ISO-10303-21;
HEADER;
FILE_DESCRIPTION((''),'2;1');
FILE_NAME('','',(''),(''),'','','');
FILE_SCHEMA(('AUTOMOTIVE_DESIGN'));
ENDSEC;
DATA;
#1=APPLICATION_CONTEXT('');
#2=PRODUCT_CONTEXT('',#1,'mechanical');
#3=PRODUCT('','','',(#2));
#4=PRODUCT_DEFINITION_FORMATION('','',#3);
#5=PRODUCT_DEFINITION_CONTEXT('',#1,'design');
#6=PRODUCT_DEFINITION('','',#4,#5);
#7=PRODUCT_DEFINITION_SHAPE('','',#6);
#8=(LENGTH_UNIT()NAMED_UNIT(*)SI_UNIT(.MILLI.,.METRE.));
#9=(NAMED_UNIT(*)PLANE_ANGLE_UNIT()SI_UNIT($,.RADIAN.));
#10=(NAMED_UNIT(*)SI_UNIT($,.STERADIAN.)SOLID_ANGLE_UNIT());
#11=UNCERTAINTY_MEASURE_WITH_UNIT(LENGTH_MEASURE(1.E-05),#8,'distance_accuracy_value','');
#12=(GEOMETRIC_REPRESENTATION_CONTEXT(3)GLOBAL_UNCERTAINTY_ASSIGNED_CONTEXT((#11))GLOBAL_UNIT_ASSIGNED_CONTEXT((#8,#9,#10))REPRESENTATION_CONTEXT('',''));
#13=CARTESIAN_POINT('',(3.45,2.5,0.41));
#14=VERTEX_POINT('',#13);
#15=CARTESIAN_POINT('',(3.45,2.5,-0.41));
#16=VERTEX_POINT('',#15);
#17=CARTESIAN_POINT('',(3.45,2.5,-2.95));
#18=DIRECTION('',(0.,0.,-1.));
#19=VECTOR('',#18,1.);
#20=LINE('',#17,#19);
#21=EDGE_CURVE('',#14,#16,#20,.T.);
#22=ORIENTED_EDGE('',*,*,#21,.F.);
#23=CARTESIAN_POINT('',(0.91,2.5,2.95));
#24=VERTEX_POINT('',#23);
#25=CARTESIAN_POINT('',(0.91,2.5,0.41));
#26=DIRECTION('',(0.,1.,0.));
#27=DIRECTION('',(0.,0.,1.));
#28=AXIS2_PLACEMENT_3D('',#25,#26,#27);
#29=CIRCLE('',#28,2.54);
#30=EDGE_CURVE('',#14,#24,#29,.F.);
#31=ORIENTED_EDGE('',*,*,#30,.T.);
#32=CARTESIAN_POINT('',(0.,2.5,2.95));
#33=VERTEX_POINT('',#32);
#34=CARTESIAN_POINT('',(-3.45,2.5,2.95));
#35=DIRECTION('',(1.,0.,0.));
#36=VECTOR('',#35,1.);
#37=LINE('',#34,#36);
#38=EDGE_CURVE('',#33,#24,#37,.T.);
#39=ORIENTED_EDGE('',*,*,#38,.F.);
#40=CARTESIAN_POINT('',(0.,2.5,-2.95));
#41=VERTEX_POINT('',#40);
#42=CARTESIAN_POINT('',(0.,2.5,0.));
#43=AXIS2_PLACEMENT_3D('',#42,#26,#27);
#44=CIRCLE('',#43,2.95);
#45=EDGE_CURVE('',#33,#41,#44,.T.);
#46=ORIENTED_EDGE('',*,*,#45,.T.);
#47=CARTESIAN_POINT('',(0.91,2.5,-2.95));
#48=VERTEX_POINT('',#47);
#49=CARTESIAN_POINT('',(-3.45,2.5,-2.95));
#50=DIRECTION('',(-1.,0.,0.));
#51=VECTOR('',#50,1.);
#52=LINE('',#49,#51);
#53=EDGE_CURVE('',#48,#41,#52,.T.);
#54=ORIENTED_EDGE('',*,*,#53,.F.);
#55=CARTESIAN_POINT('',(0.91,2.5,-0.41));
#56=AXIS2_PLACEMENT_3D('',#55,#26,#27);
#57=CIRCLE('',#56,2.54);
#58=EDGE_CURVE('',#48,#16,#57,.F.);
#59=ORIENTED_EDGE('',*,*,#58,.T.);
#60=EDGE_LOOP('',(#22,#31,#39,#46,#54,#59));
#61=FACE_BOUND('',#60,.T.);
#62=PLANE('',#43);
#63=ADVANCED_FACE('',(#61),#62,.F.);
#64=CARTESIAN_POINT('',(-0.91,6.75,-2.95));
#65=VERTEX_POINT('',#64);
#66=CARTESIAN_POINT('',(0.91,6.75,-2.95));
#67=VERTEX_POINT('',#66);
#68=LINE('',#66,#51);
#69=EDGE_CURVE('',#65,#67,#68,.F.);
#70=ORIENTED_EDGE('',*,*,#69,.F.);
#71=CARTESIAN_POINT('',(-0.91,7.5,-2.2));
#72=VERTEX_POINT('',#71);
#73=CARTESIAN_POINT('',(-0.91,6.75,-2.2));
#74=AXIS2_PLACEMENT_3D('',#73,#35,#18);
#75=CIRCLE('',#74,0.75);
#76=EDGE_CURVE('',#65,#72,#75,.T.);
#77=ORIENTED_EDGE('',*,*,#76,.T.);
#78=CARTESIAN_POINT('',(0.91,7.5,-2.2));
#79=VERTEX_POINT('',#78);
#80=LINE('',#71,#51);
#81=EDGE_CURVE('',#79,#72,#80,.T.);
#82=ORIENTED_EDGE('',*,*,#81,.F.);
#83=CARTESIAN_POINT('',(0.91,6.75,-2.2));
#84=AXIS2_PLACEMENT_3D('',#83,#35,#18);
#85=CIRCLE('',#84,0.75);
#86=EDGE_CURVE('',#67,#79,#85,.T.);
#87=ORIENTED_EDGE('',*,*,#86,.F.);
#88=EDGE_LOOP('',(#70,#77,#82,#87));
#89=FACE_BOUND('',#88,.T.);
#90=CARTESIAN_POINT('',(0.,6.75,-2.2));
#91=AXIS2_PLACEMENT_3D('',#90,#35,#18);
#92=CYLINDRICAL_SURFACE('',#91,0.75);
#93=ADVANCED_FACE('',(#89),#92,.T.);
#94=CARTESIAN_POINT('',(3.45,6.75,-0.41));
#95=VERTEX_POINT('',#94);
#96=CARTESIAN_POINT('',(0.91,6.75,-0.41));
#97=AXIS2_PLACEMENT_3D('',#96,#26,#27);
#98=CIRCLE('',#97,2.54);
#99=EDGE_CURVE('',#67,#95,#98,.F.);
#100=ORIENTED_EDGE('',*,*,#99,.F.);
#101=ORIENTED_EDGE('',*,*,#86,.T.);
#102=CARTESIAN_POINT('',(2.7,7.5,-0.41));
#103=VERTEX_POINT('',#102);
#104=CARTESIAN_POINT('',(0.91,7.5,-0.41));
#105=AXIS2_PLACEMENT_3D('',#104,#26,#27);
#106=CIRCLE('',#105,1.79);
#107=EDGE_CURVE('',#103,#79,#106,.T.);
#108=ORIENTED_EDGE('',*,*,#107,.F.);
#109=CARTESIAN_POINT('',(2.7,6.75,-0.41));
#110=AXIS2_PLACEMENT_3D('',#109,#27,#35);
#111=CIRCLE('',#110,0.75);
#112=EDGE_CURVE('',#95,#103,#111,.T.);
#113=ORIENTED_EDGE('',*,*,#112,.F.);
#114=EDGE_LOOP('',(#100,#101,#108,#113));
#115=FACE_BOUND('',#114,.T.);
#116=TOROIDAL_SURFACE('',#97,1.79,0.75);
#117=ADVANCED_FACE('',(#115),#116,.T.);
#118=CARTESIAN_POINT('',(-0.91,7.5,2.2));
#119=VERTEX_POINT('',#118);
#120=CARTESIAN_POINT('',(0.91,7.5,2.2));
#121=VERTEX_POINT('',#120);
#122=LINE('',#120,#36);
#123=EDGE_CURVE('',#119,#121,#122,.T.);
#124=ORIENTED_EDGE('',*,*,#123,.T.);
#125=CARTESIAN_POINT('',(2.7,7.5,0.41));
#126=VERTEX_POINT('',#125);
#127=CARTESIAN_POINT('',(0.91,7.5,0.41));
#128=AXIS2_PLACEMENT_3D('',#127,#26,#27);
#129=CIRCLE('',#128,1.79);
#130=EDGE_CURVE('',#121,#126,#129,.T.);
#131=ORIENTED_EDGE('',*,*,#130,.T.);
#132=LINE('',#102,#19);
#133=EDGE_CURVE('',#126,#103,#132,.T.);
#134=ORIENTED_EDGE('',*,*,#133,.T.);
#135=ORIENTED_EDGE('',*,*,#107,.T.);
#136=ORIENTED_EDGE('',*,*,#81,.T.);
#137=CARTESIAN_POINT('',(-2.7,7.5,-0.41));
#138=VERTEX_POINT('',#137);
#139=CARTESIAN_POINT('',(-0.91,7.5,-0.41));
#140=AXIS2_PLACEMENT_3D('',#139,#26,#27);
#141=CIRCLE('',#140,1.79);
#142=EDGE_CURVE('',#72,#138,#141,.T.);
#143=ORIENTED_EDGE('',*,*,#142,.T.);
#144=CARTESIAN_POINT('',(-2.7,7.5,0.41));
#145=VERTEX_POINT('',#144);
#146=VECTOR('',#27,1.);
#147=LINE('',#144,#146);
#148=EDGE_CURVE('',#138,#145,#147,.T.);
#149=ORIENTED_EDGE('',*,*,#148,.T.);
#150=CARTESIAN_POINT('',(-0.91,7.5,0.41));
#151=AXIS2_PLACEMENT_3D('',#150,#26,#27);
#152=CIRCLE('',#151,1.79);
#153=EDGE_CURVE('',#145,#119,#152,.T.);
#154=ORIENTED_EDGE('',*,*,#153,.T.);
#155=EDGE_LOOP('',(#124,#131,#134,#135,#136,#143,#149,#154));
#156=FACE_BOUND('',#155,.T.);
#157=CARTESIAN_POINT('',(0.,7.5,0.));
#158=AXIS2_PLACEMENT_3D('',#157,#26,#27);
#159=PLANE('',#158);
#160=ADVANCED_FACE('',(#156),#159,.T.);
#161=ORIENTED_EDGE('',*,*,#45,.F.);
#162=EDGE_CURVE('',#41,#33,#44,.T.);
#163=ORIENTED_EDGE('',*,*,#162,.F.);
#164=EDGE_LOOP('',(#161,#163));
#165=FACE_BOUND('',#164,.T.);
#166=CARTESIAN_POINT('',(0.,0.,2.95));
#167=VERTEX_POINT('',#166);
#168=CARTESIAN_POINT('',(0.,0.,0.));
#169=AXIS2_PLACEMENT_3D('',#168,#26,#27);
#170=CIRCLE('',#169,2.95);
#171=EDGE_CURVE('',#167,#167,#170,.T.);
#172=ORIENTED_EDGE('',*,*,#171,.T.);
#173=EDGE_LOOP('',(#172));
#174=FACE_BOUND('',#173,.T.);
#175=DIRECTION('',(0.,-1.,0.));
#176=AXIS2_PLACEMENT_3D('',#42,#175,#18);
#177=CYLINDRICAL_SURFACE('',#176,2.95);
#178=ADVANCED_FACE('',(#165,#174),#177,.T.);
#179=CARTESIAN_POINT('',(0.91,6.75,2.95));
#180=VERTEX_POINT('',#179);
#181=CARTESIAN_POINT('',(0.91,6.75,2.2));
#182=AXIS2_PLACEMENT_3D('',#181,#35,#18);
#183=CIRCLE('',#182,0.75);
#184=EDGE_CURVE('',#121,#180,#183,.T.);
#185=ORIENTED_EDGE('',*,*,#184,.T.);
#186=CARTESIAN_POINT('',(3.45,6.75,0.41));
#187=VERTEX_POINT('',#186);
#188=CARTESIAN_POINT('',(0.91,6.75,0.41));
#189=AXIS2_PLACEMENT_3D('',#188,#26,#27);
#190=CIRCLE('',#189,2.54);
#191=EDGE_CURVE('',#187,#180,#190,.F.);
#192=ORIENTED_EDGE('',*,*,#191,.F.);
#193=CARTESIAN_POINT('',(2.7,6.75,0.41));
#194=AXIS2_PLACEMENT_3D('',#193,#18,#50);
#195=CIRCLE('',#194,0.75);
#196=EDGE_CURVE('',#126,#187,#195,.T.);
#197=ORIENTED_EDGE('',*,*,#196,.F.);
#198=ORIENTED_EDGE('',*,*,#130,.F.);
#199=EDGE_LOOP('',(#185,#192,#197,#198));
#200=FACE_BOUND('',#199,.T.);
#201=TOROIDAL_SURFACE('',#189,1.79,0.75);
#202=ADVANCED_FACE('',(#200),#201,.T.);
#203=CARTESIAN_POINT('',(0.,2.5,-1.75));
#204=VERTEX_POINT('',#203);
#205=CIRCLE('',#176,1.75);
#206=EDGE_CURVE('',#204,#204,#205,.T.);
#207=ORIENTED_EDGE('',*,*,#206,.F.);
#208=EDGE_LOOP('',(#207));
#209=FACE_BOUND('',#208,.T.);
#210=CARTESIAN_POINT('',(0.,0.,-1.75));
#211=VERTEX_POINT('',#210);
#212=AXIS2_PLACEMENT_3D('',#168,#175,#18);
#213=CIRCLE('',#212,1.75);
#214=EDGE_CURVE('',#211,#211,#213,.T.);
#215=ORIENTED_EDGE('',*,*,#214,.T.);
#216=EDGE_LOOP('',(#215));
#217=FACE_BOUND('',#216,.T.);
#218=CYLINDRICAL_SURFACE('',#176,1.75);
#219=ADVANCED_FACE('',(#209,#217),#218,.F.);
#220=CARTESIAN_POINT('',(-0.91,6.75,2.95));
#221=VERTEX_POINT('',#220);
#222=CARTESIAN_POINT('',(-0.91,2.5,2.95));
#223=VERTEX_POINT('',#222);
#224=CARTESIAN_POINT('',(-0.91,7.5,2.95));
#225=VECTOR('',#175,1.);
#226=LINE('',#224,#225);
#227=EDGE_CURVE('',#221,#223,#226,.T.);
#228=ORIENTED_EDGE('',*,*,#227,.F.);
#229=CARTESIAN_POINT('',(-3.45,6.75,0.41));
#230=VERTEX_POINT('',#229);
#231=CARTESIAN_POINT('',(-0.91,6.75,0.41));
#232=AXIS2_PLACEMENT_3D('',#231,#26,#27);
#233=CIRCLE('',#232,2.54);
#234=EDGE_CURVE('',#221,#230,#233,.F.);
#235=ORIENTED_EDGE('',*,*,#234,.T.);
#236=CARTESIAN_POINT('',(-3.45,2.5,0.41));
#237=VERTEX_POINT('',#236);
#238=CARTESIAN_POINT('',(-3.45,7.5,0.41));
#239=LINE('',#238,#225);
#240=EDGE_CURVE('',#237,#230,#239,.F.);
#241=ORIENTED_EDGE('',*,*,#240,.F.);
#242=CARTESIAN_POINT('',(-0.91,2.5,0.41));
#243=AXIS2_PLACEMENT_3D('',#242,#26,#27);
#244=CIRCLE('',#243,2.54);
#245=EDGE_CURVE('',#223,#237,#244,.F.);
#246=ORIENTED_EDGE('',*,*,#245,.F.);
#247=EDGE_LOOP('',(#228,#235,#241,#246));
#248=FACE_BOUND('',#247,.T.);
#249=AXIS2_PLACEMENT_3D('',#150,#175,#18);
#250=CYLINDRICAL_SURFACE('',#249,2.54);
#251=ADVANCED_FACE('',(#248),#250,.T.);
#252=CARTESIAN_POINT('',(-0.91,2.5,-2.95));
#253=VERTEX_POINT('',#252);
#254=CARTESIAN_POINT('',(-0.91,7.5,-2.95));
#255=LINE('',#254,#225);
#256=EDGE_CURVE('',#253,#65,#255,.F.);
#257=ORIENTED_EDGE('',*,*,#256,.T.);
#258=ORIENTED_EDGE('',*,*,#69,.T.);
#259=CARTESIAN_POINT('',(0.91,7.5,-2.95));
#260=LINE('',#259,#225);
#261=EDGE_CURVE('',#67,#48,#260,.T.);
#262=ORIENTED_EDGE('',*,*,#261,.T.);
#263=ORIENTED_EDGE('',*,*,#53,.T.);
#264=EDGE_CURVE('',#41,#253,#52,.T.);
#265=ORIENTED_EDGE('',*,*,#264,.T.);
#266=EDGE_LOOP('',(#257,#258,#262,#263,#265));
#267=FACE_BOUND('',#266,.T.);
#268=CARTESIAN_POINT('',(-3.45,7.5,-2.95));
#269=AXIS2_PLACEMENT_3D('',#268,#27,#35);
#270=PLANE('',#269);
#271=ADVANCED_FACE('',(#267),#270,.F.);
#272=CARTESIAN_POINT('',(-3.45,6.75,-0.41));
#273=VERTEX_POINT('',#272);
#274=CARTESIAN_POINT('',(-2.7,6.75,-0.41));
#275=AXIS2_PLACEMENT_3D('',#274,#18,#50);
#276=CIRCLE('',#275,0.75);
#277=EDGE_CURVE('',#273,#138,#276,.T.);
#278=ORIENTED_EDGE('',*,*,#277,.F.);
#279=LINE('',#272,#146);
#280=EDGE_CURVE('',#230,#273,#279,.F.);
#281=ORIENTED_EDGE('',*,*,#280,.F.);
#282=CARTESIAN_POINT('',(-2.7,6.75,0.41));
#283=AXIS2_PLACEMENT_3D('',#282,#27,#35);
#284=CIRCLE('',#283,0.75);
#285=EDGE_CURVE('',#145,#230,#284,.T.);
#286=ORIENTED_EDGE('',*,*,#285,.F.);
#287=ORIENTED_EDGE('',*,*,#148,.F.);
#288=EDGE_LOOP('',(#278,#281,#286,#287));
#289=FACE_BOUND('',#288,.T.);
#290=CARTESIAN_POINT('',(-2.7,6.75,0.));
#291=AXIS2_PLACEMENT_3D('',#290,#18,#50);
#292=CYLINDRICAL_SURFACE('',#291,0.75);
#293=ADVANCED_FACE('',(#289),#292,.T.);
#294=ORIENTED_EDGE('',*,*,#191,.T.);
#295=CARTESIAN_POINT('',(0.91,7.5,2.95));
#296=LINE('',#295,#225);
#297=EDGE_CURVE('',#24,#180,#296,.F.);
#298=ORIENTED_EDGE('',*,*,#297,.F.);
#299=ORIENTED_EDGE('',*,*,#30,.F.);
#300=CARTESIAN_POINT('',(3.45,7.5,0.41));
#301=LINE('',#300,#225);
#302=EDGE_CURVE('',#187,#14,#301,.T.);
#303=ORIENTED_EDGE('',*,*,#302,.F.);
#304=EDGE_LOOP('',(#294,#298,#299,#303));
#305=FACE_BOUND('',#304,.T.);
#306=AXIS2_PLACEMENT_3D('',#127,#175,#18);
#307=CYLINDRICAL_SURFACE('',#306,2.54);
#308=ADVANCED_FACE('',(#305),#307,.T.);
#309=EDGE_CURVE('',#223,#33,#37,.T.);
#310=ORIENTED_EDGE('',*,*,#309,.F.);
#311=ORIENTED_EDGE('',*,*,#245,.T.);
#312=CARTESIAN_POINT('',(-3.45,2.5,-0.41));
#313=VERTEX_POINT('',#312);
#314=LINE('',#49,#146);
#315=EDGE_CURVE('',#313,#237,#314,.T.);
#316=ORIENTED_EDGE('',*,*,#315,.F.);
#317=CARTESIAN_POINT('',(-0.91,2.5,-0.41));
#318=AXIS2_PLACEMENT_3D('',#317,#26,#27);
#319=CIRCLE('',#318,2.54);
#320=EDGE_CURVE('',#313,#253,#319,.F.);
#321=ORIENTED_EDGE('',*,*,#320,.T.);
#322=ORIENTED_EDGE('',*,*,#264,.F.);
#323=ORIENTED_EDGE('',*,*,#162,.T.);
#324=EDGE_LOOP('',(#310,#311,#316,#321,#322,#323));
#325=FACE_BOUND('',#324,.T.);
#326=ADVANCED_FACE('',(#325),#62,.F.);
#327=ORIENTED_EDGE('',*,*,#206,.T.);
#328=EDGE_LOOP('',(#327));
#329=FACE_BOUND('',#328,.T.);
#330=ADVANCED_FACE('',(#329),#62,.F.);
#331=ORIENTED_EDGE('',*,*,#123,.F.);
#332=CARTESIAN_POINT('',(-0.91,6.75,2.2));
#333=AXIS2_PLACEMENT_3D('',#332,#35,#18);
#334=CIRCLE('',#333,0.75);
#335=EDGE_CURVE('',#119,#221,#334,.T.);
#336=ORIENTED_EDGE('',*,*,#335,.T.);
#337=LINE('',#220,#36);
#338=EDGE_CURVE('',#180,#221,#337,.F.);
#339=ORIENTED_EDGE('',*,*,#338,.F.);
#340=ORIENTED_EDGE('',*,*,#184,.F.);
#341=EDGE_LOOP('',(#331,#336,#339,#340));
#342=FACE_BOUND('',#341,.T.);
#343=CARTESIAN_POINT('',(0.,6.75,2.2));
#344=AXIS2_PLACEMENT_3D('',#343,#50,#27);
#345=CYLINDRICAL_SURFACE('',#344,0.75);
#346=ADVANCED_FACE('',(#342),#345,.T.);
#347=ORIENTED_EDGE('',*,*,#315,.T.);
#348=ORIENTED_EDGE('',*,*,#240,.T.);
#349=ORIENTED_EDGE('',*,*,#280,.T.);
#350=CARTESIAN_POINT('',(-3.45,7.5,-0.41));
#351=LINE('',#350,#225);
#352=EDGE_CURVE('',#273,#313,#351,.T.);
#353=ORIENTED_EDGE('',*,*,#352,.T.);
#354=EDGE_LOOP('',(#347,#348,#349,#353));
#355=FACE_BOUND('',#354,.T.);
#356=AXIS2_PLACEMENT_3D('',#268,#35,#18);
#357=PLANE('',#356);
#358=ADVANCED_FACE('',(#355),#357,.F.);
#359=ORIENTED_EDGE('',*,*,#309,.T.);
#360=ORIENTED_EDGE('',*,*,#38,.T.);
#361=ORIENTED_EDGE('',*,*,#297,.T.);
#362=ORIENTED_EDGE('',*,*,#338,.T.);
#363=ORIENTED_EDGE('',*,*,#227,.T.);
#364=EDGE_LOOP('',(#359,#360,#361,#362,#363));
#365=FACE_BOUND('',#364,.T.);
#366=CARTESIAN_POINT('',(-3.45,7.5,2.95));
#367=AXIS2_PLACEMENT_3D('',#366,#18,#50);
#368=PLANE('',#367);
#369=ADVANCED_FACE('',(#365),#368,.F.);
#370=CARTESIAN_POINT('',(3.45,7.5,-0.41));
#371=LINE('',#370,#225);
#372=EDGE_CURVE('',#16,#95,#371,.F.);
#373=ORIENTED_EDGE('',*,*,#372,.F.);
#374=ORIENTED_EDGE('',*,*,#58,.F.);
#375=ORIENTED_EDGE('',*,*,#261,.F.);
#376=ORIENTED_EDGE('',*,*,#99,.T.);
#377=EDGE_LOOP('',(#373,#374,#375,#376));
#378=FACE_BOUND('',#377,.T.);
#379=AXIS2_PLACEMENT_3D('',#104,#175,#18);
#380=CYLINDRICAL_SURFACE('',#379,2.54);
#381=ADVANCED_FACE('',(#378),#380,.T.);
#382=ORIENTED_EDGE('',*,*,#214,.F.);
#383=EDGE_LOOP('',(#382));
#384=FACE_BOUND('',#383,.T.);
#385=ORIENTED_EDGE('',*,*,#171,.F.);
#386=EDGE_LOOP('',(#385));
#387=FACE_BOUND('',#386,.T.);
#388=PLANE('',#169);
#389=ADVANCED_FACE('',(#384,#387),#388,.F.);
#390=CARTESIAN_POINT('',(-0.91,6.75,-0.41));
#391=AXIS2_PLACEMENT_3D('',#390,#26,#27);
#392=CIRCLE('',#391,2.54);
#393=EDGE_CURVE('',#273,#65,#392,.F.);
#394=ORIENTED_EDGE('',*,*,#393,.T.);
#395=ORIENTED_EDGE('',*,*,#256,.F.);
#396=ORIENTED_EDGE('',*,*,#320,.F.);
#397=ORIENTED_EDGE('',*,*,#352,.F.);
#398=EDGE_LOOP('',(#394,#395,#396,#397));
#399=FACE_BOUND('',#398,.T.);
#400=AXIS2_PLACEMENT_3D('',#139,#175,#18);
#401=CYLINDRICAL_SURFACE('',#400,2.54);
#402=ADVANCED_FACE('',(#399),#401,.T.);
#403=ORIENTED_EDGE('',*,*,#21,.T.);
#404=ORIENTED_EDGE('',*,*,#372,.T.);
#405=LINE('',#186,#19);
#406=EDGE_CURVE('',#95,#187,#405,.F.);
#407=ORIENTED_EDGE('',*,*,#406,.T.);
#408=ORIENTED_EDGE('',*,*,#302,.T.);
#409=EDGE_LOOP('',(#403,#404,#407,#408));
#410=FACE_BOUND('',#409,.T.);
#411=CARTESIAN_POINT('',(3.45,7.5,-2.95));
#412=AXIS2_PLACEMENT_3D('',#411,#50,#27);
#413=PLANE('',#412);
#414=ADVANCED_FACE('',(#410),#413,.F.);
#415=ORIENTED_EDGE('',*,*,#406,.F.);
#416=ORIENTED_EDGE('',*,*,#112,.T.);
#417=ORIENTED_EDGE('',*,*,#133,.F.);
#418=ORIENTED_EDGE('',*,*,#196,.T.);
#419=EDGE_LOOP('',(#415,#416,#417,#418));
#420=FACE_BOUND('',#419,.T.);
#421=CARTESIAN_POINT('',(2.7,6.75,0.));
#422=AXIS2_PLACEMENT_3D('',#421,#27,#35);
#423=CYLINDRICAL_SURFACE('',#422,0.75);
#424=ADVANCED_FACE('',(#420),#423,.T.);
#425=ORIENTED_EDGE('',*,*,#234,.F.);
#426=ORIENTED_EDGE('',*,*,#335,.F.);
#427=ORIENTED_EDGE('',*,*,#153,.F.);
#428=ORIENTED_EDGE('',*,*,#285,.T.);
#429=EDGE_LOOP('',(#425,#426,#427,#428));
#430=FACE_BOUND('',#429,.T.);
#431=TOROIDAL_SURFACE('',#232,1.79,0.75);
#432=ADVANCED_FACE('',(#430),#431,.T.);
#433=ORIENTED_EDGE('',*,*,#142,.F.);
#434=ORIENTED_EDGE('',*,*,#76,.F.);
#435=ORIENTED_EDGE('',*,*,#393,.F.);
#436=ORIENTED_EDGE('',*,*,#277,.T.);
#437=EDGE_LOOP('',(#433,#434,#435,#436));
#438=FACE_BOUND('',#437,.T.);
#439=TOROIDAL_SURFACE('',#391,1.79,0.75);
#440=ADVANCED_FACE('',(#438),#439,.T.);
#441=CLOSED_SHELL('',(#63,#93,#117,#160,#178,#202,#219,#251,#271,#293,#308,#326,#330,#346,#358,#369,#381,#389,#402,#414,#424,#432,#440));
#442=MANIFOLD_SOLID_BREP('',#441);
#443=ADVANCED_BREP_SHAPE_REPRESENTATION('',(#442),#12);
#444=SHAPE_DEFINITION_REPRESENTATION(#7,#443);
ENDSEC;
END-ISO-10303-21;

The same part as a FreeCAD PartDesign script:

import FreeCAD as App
import Part
import Sketcher

V = App.Vector


def edges_at(feature, points):
    """Names of the edges that pass closest to the given points."""
    edges = feature.Shape.Edges
    near = lambda p: min(range(len(edges)), key=lambda i: edges[i].distToShape(Part.Vertex(*p))[0])
    return sorted({f"Edge{near(p) + 1}" for p in points})


def add_polygon(sketch, points):
    """Adds a closed chain of lines whose ends are joined by coincident constraints."""
    first, n = sketch.GeometryCount, len(points)
    for a, b in zip(points, points[1:] + points[:1]):
        sketch.addGeometry(Part.LineSegment(App.Vector(*a, 0), App.Vector(*b, 0)), False)
    for i in range(n):
        sketch.addConstraint(Sketcher.Constraint("Coincident", first + i, 2, first + (i + 1) % n, 1))

doc = App.newDocument("Part")
params = doc.addObject("Spreadsheet::Sheet", "Params")
for row, (alias, value) in enumerate([
    ("sketch1_diameter", "5.9 mm"),
    ("pad1_length", "2.5 mm"),
    ("sketch2_diameter", "3.5 mm"),
    ("pocket1_length", "2.5 mm"),
    ("sketch3_width", "6.9 mm"),
    ("sketch3_height", "5.9 mm"),
    ("pad2_length", "5 mm"),
    ("fillet_radius", "2.54 mm"),
    ("fillet2_radius", "0.75 mm"),
], start=1):
    params.set(f"A{row}", alias)
    params.set(f"B{row}", "=" + value)
    params.setAlias(f"B{row}", alias)

body = doc.addObject("PartDesign::Body", "Body")

# Sketch on XZ plane
sketch1 = body.newObject("Sketcher::SketchObject", "Sketch")
sketch1.AttachmentSupport = (doc.getObject("XZ_Plane"), [""])
sketch1.MapMode = "FlatFace"
sketch1.addGeometry(Part.Circle(V(0, 0, 0), V(0, 0, 1), 3), False)
sketch1.addConstraint(Sketcher.Constraint("Coincident", 0, 3, -1, 1))
sketch1.addConstraint(Sketcher.Constraint("Diameter", 0, 5.9))
sketch1.setExpression("Constraints[1]", "Params.sketch1_diameter")
pad1 = body.newObject("PartDesign::Pad", "Pad")
pad1.Profile = sketch1
pad1.setExpression("Length", "Params.pad1_length")
pad1.Reversed = True

# Sketch on XZ plane
sketch2 = body.newObject("Sketcher::SketchObject", "Sketch001")
sketch2.AttachmentSupport = (doc.getObject("XZ_Plane"), [""])
sketch2.MapMode = "FlatFace"
sketch2.addGeometry(Part.Circle(V(0, 0, 0), V(0, 0, 1), 1.8), False)
sketch2.addConstraint(Sketcher.Constraint("Coincident", 0, 3, -1, 1))
sketch2.addConstraint(Sketcher.Constraint("Diameter", 0, 3.5))
sketch2.setExpression("Constraints[1]", "Params.sketch2_diameter")
pocket1 = body.newObject("PartDesign::Pocket", "Pocket")
pocket1.Profile = sketch2
pocket1.setExpression("Length", "Params.pocket1_length")

# Sketch on XZ plane
sketch3 = body.newObject("Sketcher::SketchObject", "Sketch002")
sketch3.AttachmentSupport = (doc.getObject("XZ_Plane"), [""])
sketch3.MapMode = "FlatFace"
sketch3.AttachmentOffset = App.Placement(V(0, 0, -2.5), App.Rotation())
add_polygon(sketch3, [(-3, -3), (-3, 3), (3, 3), (3, -3)])  # lines 0-3
sketch3.addConstraint(Sketcher.Constraint("Vertical", 0))
sketch3.addConstraint(Sketcher.Constraint("Horizontal", 1))
sketch3.addConstraint(Sketcher.Constraint("Vertical", 2))
sketch3.addConstraint(Sketcher.Constraint("Horizontal", 3))
sketch3.addConstraint(Sketcher.Constraint("Symmetric", 0, 2, 2, 2, -1, 1))
sketch3.addConstraint(Sketcher.Constraint("DistanceX", 1, 1, 1, 2, 6.9))
sketch3.addConstraint(Sketcher.Constraint("DistanceY", 0, 1, 0, 2, 5.9))
sketch3.setExpression("Constraints[9]", "Params.sketch3_width")
sketch3.setExpression("Constraints[10]", "Params.sketch3_height")
pad2 = body.newObject("PartDesign::Pad", "Pad001")
pad2.Profile = sketch3
pad2.setExpression("Length", "Params.pad2_length")
pad2.Reversed = True
doc.recompute()

fillet = body.newObject("PartDesign::Fillet", "Fillet")
fillet.Base = (pad2, edges_at(pad2, [
    (3.45, 5, 2.95),
    (3.45, 5, -2.95),
    (-3.45, 5, -2.95),
    (-3.45, 5, 2.95),
]))
fillet.setExpression("Radius", "Params.fillet_radius")
doc.recompute()

fillet2 = body.newObject("PartDesign::Fillet", "Fillet001")
fillet2.Base = (fillet, edges_at(fillet, [
    (-3.45, 7.5, 0),
    (0, 7.5, -2.95),
    (3.45, 7.5, 0),
    (0, 7.5, 2.95),
    (-2.706, 7.5, 2.206),
    (2.706, 7.5, 2.206),
    (2.706, 7.5, -2.206),
    (-2.706, 7.5, -2.206),
]))
fillet2.setExpression("Radius", "Params.fillet2_radius")

doc.recompute()
